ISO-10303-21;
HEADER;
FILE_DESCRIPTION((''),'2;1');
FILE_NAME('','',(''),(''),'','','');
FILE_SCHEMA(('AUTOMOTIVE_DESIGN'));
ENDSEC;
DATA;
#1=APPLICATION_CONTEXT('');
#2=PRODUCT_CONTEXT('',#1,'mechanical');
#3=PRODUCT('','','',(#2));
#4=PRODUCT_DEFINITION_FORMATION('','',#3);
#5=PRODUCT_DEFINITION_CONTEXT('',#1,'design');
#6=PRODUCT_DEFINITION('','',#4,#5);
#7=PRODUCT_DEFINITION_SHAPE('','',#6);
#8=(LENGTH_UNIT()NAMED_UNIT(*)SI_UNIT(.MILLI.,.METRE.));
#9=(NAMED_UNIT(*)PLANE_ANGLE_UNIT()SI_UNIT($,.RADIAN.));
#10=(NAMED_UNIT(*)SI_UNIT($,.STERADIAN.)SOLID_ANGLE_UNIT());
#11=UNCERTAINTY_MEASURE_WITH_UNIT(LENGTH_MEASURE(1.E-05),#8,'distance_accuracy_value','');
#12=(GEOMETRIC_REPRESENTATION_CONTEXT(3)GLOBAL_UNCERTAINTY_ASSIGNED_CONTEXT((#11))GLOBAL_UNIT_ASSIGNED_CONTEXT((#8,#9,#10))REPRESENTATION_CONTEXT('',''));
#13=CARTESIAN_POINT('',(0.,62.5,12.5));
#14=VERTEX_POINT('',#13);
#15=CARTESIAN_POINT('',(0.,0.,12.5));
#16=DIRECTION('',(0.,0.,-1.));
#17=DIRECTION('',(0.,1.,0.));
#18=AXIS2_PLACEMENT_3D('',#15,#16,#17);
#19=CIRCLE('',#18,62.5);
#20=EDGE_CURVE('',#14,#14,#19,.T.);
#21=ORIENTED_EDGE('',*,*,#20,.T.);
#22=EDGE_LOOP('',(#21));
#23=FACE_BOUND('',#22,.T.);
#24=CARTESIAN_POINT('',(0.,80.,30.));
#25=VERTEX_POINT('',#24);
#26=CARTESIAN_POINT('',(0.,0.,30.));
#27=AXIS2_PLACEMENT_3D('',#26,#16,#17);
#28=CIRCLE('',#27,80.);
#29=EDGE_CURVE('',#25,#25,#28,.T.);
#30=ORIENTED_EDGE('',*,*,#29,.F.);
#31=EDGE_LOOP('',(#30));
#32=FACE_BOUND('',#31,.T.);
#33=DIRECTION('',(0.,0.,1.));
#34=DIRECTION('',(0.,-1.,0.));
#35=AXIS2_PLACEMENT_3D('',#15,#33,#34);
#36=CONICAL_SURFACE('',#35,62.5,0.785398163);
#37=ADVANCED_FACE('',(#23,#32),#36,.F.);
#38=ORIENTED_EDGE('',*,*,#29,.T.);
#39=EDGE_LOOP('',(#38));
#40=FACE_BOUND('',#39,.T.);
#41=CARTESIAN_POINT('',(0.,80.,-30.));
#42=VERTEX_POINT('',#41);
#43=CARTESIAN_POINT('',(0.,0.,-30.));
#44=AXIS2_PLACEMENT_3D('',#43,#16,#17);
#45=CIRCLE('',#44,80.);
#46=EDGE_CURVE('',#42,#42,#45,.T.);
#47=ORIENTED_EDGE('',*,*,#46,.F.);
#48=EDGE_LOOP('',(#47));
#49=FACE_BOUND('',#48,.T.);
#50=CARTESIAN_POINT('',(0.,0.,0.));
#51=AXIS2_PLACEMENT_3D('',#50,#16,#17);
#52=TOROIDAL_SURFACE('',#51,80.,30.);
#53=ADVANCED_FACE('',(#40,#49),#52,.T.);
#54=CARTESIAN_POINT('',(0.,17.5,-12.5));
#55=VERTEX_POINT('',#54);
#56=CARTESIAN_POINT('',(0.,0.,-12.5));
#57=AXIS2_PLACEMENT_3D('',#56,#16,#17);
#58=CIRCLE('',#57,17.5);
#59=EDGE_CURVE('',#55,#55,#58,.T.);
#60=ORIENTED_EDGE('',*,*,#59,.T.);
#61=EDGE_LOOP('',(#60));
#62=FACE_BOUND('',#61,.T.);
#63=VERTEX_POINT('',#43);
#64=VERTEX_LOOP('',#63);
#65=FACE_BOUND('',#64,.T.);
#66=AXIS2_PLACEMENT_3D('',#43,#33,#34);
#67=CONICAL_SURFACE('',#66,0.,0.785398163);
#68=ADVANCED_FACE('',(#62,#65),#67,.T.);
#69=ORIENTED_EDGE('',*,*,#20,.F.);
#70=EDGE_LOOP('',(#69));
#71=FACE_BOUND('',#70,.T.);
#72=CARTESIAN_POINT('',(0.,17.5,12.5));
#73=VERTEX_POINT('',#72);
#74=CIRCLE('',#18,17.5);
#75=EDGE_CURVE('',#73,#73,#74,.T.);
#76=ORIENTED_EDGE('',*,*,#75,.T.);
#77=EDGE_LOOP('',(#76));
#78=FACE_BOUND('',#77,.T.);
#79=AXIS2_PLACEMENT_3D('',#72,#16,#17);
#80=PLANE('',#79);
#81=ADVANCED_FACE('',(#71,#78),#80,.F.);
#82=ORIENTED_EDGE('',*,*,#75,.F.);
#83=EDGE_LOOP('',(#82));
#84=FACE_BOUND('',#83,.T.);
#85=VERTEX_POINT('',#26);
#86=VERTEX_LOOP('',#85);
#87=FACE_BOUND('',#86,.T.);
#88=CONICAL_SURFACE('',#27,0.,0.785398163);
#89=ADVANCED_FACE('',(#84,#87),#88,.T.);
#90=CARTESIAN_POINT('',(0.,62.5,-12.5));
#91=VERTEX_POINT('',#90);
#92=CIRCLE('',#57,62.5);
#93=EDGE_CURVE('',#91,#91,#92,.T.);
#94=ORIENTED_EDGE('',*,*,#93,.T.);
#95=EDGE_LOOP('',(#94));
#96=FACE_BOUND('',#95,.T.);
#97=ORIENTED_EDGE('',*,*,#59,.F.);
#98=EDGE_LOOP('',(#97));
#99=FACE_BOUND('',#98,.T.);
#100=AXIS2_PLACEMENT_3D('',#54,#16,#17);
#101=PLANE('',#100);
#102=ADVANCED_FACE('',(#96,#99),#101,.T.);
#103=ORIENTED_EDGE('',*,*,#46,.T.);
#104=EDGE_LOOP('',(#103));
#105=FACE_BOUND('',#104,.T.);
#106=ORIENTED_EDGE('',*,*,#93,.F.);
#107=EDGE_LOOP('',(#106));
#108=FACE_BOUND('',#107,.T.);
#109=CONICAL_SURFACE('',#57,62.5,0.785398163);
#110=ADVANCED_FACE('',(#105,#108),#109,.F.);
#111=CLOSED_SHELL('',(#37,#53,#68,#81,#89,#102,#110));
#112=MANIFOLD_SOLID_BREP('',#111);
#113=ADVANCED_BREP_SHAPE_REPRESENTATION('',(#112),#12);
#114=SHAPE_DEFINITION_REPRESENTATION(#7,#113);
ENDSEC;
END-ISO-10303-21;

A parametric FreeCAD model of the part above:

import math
import FreeCAD as App
import Part
import Sketcher
Q = App.Units.Quantity

doc = App.newDocument("Part")
params = doc.addObject("Spreadsheet::Sheet", "Params")
for row, (alias, value) in enumerate([
    ("sketch1_radius", "30 mm"),
    ("sketch1_width", "45 mm"),
    ("revolution_angle", "360 deg"),
], start=1):
    params.set(f"A{row}", alias)
    params.set(f"B{row}", "=" + value)
    params.setAlias(f"B{row}", alias)

body = doc.addObject("PartDesign::Body", "Body")

# Sketch on YZ plane
sketch1 = body.newObject("Sketcher::SketchObject", "Sketch")
sketch1.AttachmentSupport = (doc.getObject("YZ_Plane"), [""])
sketch1.MapMode = "FlatFace"
sketch1.addGeometry([
    Part.LineSegment(App.Vector(0, 30, 0), App.Vector(0, -30, 0)),  # 0
    Part.LineSegment(App.Vector(0, -30, 0), App.Vector(18, -12, 0)),  # 1
    Part.LineSegment(App.Vector(18, -12, 0), App.Vector(62, -12, 0)),  # 2
    Part.LineSegment(App.Vector(62, -12, 0), App.Vector(80, -30, 0)),  # 3
    Part.ArcOfCircle(Part.Circle(App.Vector(80, 0, 0), App.Vector(0, 0, 1), 30), math.radians(-90), math.radians(90)),  # 4
    Part.LineSegment(App.Vector(80, 30, 0), App.Vector(62, 12, 0)),  # 5
    Part.LineSegment(App.Vector(62, 12, 0), App.Vector(18, 12, 0)),  # 6
    Part.LineSegment(App.Vector(18, 12, 0), App.Vector(0, 30, 0)),  # 7
], False)
sketch1.addConstraint([
    Sketcher.Constraint("Coincident", 0, 2, 1, 1),
    Sketcher.Constraint("Coincident", 1, 2, 2, 1),
    Sketcher.Constraint("Coincident", 2, 2, 3, 1),
    Sketcher.Constraint("Coincident", 3, 2, 4, 1),
    Sketcher.Constraint("Coincident", 4, 2, 5, 1),
    Sketcher.Constraint("Coincident", 5, 2, 6, 1),
    Sketcher.Constraint("Coincident", 6, 2, 7, 1),
    Sketcher.Constraint("Coincident", 7, 2, 0, 1),
    Sketcher.Constraint("Vertical", 0),
    Sketcher.Constraint("Horizontal", 2),
    Sketcher.Constraint("Horizontal", 6),
    Sketcher.Constraint("Symmetric", 0, 2, 7, 2, -1, 1),
    Sketcher.Constraint("Symmetric", 3, 2, 4, 2, -1),
    Sketcher.Constraint("Symmetric", 2, 2, 5, 2, -1),
    Sketcher.Constraint("Perpendicular", 1, 3),
    Sketcher.Constraint("Perpendicular", 3, 5),
    Sketcher.Constraint("Perpendicular", 5, 7),
    Sketcher.Constraint("Horizontal", 0, 2, 3, 2),
    Sketcher.Constraint("Vertical", 4, 3, 3, 2),
    Sketcher.Constraint("Radius", 4, Q("30 mm")),
    Sketcher.Constraint("DistanceX", 2, 1, 2, 2, Q("45 mm")),
    Sketcher.Constraint("DistanceX", -1, 1, 4, 3, Q("80 mm")),
])
sketch1.setExpression("Constraints[19]", "Params.sketch1_radius")
sketch1.setExpression("Constraints[20]", "Params.sketch1_width")
revolution = body.newObject("PartDesign::Revolution", "Revolution")
revolution.Profile = sketch1
revolution.ReferenceAxis = (sketch1, ["V_Axis"])
revolution.setExpression("Angle", "Params.revolution_angle")

doc.recompute()
